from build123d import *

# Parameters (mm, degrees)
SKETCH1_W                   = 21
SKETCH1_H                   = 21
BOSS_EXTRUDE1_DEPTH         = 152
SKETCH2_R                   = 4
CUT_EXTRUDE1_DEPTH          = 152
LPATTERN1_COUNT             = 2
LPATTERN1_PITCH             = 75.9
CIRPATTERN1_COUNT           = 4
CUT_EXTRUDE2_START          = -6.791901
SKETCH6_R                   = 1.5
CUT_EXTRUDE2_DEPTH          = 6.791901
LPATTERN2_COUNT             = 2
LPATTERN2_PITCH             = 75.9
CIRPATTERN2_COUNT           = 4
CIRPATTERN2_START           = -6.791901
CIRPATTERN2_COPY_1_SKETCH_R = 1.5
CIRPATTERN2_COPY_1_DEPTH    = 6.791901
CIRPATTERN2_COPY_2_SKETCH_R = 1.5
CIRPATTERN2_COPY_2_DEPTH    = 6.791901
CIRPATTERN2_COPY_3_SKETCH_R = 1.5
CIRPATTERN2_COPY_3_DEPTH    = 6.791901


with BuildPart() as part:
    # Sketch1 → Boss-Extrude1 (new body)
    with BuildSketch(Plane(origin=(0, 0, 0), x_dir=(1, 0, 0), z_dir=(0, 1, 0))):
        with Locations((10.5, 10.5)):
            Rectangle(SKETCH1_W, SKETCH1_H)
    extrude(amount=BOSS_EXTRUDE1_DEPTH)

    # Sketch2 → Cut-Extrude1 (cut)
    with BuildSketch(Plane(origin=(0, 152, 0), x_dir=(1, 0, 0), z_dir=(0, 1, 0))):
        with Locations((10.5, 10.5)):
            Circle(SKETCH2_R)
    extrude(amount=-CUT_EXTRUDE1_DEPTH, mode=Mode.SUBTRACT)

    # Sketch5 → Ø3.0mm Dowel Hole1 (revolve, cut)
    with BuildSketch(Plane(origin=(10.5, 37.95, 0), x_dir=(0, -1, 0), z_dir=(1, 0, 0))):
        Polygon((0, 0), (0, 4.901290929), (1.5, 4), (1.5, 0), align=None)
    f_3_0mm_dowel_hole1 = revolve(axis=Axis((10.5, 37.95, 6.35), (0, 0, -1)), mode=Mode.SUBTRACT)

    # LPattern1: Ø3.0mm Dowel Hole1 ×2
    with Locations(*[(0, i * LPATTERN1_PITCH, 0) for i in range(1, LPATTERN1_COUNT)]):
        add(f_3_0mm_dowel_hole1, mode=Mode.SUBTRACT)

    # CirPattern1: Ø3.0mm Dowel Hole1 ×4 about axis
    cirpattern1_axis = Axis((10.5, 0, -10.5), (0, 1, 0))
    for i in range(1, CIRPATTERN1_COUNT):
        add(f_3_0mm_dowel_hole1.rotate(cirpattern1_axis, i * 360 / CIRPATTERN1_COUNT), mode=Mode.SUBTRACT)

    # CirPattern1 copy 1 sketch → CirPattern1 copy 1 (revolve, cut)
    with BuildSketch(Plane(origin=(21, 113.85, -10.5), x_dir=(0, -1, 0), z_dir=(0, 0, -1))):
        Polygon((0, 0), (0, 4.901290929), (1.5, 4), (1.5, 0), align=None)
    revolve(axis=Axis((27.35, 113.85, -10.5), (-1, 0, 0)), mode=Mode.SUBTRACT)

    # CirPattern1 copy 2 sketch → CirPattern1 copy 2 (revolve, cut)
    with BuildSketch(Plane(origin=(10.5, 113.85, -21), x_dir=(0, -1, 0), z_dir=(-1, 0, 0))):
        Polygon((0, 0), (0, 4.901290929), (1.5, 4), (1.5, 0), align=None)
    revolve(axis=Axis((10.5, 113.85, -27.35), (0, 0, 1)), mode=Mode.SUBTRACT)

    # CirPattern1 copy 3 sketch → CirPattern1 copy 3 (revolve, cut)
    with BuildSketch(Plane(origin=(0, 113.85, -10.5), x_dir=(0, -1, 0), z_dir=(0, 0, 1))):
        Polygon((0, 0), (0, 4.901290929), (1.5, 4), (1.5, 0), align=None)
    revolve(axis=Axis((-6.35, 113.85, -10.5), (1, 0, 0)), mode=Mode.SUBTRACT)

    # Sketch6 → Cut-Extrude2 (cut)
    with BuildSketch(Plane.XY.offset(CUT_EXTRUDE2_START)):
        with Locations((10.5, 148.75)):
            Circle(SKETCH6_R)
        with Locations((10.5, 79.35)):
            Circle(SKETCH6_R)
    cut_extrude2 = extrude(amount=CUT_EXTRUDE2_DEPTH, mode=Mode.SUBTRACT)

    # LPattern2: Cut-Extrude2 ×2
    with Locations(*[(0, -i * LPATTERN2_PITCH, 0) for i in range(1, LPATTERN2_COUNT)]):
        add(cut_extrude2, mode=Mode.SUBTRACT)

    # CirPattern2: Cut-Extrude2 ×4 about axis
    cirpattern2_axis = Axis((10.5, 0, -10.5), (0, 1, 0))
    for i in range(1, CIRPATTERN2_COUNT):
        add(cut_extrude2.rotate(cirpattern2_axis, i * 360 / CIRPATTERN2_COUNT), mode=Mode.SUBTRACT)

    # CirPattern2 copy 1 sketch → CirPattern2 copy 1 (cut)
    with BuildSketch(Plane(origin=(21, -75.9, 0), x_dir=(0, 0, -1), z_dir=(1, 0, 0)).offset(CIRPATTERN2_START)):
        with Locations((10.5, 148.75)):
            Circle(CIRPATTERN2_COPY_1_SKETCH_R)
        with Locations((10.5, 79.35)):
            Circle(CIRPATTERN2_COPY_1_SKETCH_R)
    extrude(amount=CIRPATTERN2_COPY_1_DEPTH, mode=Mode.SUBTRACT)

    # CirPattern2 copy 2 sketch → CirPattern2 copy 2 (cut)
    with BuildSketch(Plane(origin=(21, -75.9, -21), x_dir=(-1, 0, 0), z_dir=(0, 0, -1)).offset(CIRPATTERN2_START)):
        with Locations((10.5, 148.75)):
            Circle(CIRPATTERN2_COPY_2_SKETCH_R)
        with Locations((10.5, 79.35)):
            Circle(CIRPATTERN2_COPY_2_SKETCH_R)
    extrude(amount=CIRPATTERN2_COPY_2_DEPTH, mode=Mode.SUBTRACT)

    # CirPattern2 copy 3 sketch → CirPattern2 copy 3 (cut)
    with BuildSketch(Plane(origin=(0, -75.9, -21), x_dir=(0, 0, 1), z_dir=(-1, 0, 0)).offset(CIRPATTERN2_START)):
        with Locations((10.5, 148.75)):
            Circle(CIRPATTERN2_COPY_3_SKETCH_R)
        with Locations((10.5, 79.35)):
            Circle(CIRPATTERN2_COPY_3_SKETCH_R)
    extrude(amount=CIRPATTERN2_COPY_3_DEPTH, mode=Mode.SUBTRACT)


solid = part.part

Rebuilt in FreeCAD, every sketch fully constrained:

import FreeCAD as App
import Part
import Sketcher

V = App.Vector
Q = App.Units.Quantity


def add_polygon(sketch, points):
    """Adds a closed chain of lines whose ends are joined by coincident constraints."""
    first, n = sketch.GeometryCount, len(points)
    for a, b in zip(points, points[1:] + points[:1]):
        sketch.addGeometry(Part.LineSegment(App.Vector(*a, 0), App.Vector(*b, 0)), False)
    for i in range(n):
        sketch.addConstraint(Sketcher.Constraint("Coincident", first + i, 2, first + (i + 1) % n, 1))

doc = App.newDocument("Part")
body = doc.addObject("PartDesign::Body", "Body")

# Sketch on XZ plane
sketch1 = body.newObject("Sketcher::SketchObject", "Sketch")
sketch1.AttachmentSupport = (doc.getObject("XZ_Plane"), [""])
sketch1.MapMode = "FlatFace"
add_polygon(sketch1, [(0, -21), (0, 0), (21, 0), (21, -21)])  # lines 0-3
sketch1.addConstraint(Sketcher.Constraint("Vertical", 0))
sketch1.addConstraint(Sketcher.Constraint("Horizontal", 1))
sketch1.addConstraint(Sketcher.Constraint("Vertical", 2))
sketch1.addConstraint(Sketcher.Constraint("Horizontal", 3))
sketch1.addConstraint(Sketcher.Constraint("Coincident", 0, 2, -1, 1))
sketch1.addConstraint(Sketcher.Constraint("Equal", 3, 0))
sketch1.addConstraint(Sketcher.Constraint("DistanceX", 1, 1, 1, 2, Q("21 mm")))
pad1 = body.newObject("PartDesign::Pad", "Pad")
pad1.Profile = sketch1
pad1.Length = 152
pad1.Reversed = True

# Sketch on XZ plane
sketch2 = body.newObject("Sketcher::SketchObject", "Sketch001")
sketch2.AttachmentSupport = (doc.getObject("XZ_Plane"), [""])
sketch2.MapMode = "FlatFace"
sketch2.AttachmentOffset = App.Placement(V(0, 0, -152), App.Rotation())
sketch2.addGeometry(Part.Circle(V(10.5, -10.5, 0), V(0, 0, 1), 4), False)
sketch2.addConstraint(Sketcher.Constraint("Diameter", 0, Q("8 mm")))
sketch2.addConstraint(Sketcher.Constraint("DistanceX", -1, 1, 0, 3, Q("10.5 mm")))
sketch2.addConstraint(Sketcher.Constraint("DistanceY", 0, 3, -1, 1, Q("10.5 mm")))
pocket1 = body.newObject("PartDesign::Pocket", "Pocket")
pocket1.Profile = sketch2
pocket1.Length = 152
pocket1.Reversed = True

# Sketch on YZ plane
sketch3 = body.newObject("Sketcher::SketchObject", "Sketch002")
sketch3.AttachmentSupport = (doc.getObject("YZ_Plane"), [""])
sketch3.MapMode = "FlatFace"
sketch3.AttachmentOffset = App.Placement(V(0, 0, 10.5), App.Rotation())
add_polygon(sketch3, [(38, -4.9), (38, 0), (36.5, 0), (36.5, -4)])  # lines 0-3
sketch3.addGeometry(Part.LineSegment(V(38, 0, 0), V(38, -4.9, 0)), True)  # axis
sketch3.addConstraint(Sketcher.Constraint("Vertical", 0))
sketch3.addConstraint(Sketcher.Constraint("Horizontal", 1))
sketch3.addConstraint(Sketcher.Constraint("Vertical", 2))
sketch3.addConstraint(Sketcher.Constraint("Vertical", 4))
sketch3.addConstraint(Sketcher.Constraint("Coincident", 4, 1, 0, 2))
sketch3.addConstraint(Sketcher.Constraint("PointOnObject", 0, 2, -1))
sketch3.addConstraint(Sketcher.Constraint("Equal", 0, 4))
sketch3.addConstraint(Sketcher.Constraint("DistanceY", 2, 2, 2, 1, Q("4 mm")))
sketch3.addConstraint(Sketcher.Constraint("Angle", 3, Q("-31 deg")))
sketch3.addConstraint(Sketcher.Constraint("DistanceX", 1, 2, 1, 1, Q("1.5 mm")))
sketch3.addConstraint(Sketcher.Constraint("DistanceX", -1, 1, 0, 2, Q("37.95 mm")))
groove = body.newObject("PartDesign::Groove", "Groove")
groove.Profile = sketch3
groove.ReferenceAxis = (sketch3, ["Axis0"])
groove.Angle = 360
doc.recompute()

linearpattern = body.newObject("PartDesign::LinearPattern", "LinearPattern")
linearpattern.Originals = [groove]
linearpattern.Direction = (doc.getObject("Y_Axis"), [""])
linearpattern.Mode = "offset"
linearpattern.Offset = 75.9
linearpattern.Occurrences = 2
body.Tip = linearpattern
doc.recompute()

datumline = body.newObject("PartDesign::Line", "DatumLine")
datumline.Placement = App.Placement(V(10.5, 0, -10.5), App.Rotation(V(0, 0, 1), V(0, 1, 0)))
polarpattern = body.newObject("PartDesign::PolarPattern", "PolarPattern")
polarpattern.Originals = [groove]
polarpattern.Axis = (datumline, [""])
polarpattern.Angle = 360
polarpattern.Occurrences = 4
body.Tip = polarpattern

# Sketch on XY plane
sketch4 = body.newObject("Sketcher::SketchObject", "Sketch003")
sketch4.AttachmentSupport = (doc.getObject("XY_Plane"), [""])
sketch4.MapMode = "FlatFace"
sketch4.AttachmentOffset = App.Placement(V(0, 0, -10.5), App.Rotation())
add_polygon(sketch4, [(16.1, 113.8), (21, 113.8), (21, 112.3), (17, 112.3)])  # lines 0-3
sketch4.addGeometry(Part.LineSegment(V(21, 113.8, 0), V(16.1, 113.8, 0)), True)  # axis
sketch4.addConstraint(Sketcher.Constraint("Horizontal", 0))
sketch4.addConstraint(Sketcher.Constraint("Vertical", 1))
sketch4.addConstraint(Sketcher.Constraint("Horizontal", 2))
sketch4.addConstraint(Sketcher.Constraint("Horizontal", 4))
sketch4.addConstraint(Sketcher.Constraint("Coincident", 4, 1, 0, 2))
sketch4.addConstraint(Sketcher.Constraint("Equal", 0, 4))
sketch4.addConstraint(Sketcher.Constraint("DistanceX", 2, 2, 2, 1, Q("4 mm")))
sketch4.addConstraint(Sketcher.Constraint("Angle", 3, Q("121 deg")))
sketch4.addConstraint(Sketcher.Constraint("DistanceY", 1, 2, 1, 1, Q("1.5 mm")))
sketch4.addConstraint(Sketcher.Constraint("DistanceX", -1, 1, 0, 2, Q("21 mm")))
sketch4.addConstraint(Sketcher.Constraint("DistanceY", -1, 1, 0, 2, Q("113.85 mm")))
groove2 = body.newObject("PartDesign::Groove", "Groove001")
groove2.Profile = sketch4
groove2.ReferenceAxis = (sketch4, ["Axis0"])
groove2.Angle = 360

# Sketch on YZ plane
sketch5 = body.newObject("Sketcher::SketchObject", "Sketch004")
sketch5.AttachmentSupport = (doc.getObject("YZ_Plane"), [""])
sketch5.MapMode = "FlatFace"
sketch5.AttachmentOffset = App.Placement(V(0, 0, 10.5), App.Rotation())
add_polygon(sketch5, [(113.8, -16.1), (113.8, -21), (112.3, -21), (112.3, -17)])  # lines 0-3
sketch5.addGeometry(Part.LineSegment(V(113.8, -21, 0), V(113.8, -16.1, 0)), True)  # axis
sketch5.addConstraint(Sketcher.Constraint("Vertical", 0))
sketch5.addConstraint(Sketcher.Constraint("Horizontal", 1))
sketch5.addConstraint(Sketcher.Constraint("Vertical", 2))
sketch5.addConstraint(Sketcher.Constraint("Vertical", 4))
sketch5.addConstraint(Sketcher.Constraint("Coincident", 4, 1, 0, 2))
sketch5.addConstraint(Sketcher.Constraint("Equal", 0, 4))
sketch5.addConstraint(Sketcher.Constraint("DistanceY", 2, 1, 2, 2, Q("4 mm")))
sketch5.addConstraint(Sketcher.Constraint("Angle", 3, Q("31 deg")))
sketch5.addConstraint(Sketcher.Constraint("DistanceX", 1, 2, 1, 1, Q("1.5 mm")))
sketch5.addConstraint(Sketcher.Constraint("DistanceY", 0, 2, -1, 1, Q("21 mm")))
sketch5.addConstraint(Sketcher.Constraint("DistanceX", -1, 1, 0, 2, Q("113.85 mm")))
groove3 = body.newObject("PartDesign::Groove", "Groove002")
groove3.Profile = sketch5
groove3.ReferenceAxis = (sketch5, ["Axis0"])
groove3.Angle = 360

# Sketch on XY plane
sketch6 = body.newObject("Sketcher::SketchObject", "Sketch005")
sketch6.AttachmentSupport = (doc.getObject("XY_Plane"), [""])
sketch6.MapMode = "FlatFace"
sketch6.AttachmentOffset = App.Placement(V(0, 0, -10.5), App.Rotation())
add_polygon(sketch6, [(4.9, 113.8), (0, 113.8), (0, 112.3), (4, 112.3)])  # lines 0-3
sketch6.addGeometry(Part.LineSegment(V(0, 113.8, 0), V(4.9, 113.8, 0)), True)  # axis
sketch6.addConstraint(Sketcher.Constraint("Horizontal", 0))
sketch6.addConstraint(Sketcher.Constraint("Vertical", 1))
sketch6.addConstraint(Sketcher.Constraint("Horizontal", 2))
sketch6.addConstraint(Sketcher.Constraint("Horizontal", 4))
sketch6.addConstraint(Sketcher.Constraint("Coincident", 4, 1, 0, 2))
sketch6.addConstraint(Sketcher.Constraint("PointOnObject", 0, 2, -2))
sketch6.addConstraint(Sketcher.Constraint("Equal", 0, 4))
sketch6.addConstraint(Sketcher.Constraint("DistanceX", 2, 1, 2, 2, Q("4 mm")))
sketch6.addConstraint(Sketcher.Constraint("Angle", 3, Q("59 deg")))
sketch6.addConstraint(Sketcher.Constraint("DistanceY", 1, 2, 1, 1, Q("1.5 mm")))
sketch6.addConstraint(Sketcher.Constraint("DistanceY", -1, 1, 0, 2, Q("113.85 mm")))
groove4 = body.newObject("PartDesign::Groove", "Groove003")
groove4.Profile = sketch6
groove4.ReferenceAxis = (sketch6, ["Axis0"])
groove4.Angle = 360

# Sketch on XY plane
sketch7 = body.newObject("Sketcher::SketchObject", "Sketch006")
sketch7.AttachmentSupport = (doc.getObject("XY_Plane"), [""])
sketch7.MapMode = "FlatFace"
sketch7.AttachmentOffset = App.Placement(V(0, 0, -6.791901), App.Rotation())
sketch7.addGeometry(Part.Circle(V(10.5, 148.8, 0), V(0, 0, 1), 1.5), False)
sketch7.addGeometry(Part.Circle(V(10.5, 79.3, 0), V(0, 0, 1), 1.5), False)
sketch7.addConstraint(Sketcher.Constraint("Equal", 0, 1))
sketch7.addConstraint(Sketcher.Constraint("Vertical", 0, 3, 1, 3))
sketch7.addConstraint(Sketcher.Constraint("Diameter", 0, Q("3 mm")))
sketch7.addConstraint(Sketcher.Constraint("DistanceX", -1, 1, 0, 3, Q("10.5 mm")))
sketch7.addConstraint(Sketcher.Constraint("DistanceY", 1, 3, 0, 3, Q("69.4 mm")))
sketch7.addConstraint(Sketcher.Constraint("DistanceY", -1, 1, 0, 3, Q("148.75 mm")))
pocket2 = body.newObject("PartDesign::Pocket", "Pocket001")
pocket2.Profile = sketch7
pocket2.Length = 6.791901
pocket2.Reversed = True
doc.recompute()

linearpattern2 = body.newObject("PartDesign::LinearPattern", "LinearPattern001")
linearpattern2.Originals = [pocket2]
linearpattern2.Direction = (doc.getObject("Y_Axis"), [""])
linearpattern2.Mode = "offset"
linearpattern2.Offset = 75.9
linearpattern2.Occurrences = 2
linearpattern2.Reversed = True
body.Tip = linearpattern2
doc.recompute()

datumline2 = body.newObject("PartDesign::Line", "DatumLine001")
datumline2.Placement = App.Placement(V(10.5, 0, -10.5), App.Rotation(V(0, 0, 1), V(0, 1, 0)))
polarpattern2 = body.newObject("PartDesign::PolarPattern", "PolarPattern001")
polarpattern2.Originals = [pocket2]
polarpattern2.Axis = (datumline2, [""])
polarpattern2.Angle = 360
polarpattern2.Occurrences = 4
body.Tip = polarpattern2

# Sketch on YZ plane
sketch8 = body.newObject("Sketcher::SketchObject", "Sketch007")
sketch8.AttachmentSupport = (doc.getObject("YZ_Plane"), [""])
sketch8.MapMode = "FlatFace"
sketch8.AttachmentOffset = App.Placement(V(0, 0, 14.208099), App.Rotation())
sketch8.addGeometry(Part.Circle(V(72.8, -10.5, 0), V(0, 0, 1), 1.5), False)
sketch8.addGeometry(Part.Circle(V(3.5, -10.5, 0), V(0, 0, 1), 1.5), False)
sketch8.addConstraint(Sketcher.Constraint("Equal", 0, 1))
sketch8.addConstraint(Sketcher.Constraint("Horizontal", 0, 3, 1, 3))
sketch8.addConstraint(Sketcher.Constraint("Diameter", 0, Q("3 mm")))
sketch8.addConstraint(Sketcher.Constraint("DistanceY", 0, 3, -1, 1, Q("10.5 mm")))
sketch8.addConstraint(Sketcher.Constraint("DistanceX", 1, 3, 0, 3, Q("69.4 mm")))
sketch8.addConstraint(Sketcher.Constraint("DistanceX", -1, 1, 0, 3, Q("72.85 mm")))
pocket3 = body.newObject("PartDesign::Pocket", "Pocket002")
pocket3.Profile = sketch8
pocket3.Length = 6.791901
pocket3.Reversed = True

# Sketch on XY plane
sketch9 = body.newObject("Sketcher::SketchObject", "Sketch008")
sketch9.AttachmentSupport = (doc.getObject("XY_Plane"), [""])
sketch9.MapMode = "FlatFace"
sketch9.AttachmentOffset = App.Placement(V(0, 0, -14.208099), App.Rotation())
sketch9.addGeometry(Part.Circle(V(10.5, 72.8, 0), V(0, 0, 1), 1.5), False)
sketch9.addGeometry(Part.Circle(V(10.5, 3.5, 0), V(0, 0, 1), 1.5), False)
sketch9.addConstraint(Sketcher.Constraint("Equal", 0, 1))
sketch9.addConstraint(Sketcher.Constraint("Vertical", 0, 3, 1, 3))
sketch9.addConstraint(Sketcher.Constraint("Diameter", 0, Q("3 mm")))
sketch9.addConstraint(Sketcher.Constraint("DistanceX", -1, 1, 0, 3, Q("10.5 mm")))
sketch9.addConstraint(Sketcher.Constraint("DistanceY", 1, 3, 0, 3, Q("69.4 mm")))
sketch9.addConstraint(Sketcher.Constraint("DistanceY", -1, 1, 0, 3, Q("72.85 mm")))
pocket4 = body.newObject("PartDesign::Pocket", "Pocket003")
pocket4.Profile = sketch9
pocket4.Length = 6.791901

# Sketch on YZ plane
sketch10 = body.newObject("Sketcher::SketchObject", "Sketch009")
sketch10.AttachmentSupport = (doc.getObject("YZ_Plane"), [""])
sketch10.MapMode = "FlatFace"
sketch10.AttachmentOffset = App.Placement(V(0, 0, 6.791901), App.Rotation())
sketch10.addGeometry(Part.Circle(V(72.8, -10.5, 0), V(0, 0, 1), 1.5), False)
sketch10.addGeometry(Part.Circle(V(3.5, -10.5, 0), V(0, 0, 1), 1.5), False)
sketch10.addConstraint(Sketcher.Constraint("Equal", 0, 1))
sketch10.addConstraint(Sketcher.Constraint("Horizontal", 0, 3, 1, 3))
sketch10.addConstraint(Sketcher.Constraint("Diameter", 0, Q("3 mm")))
sketch10.addConstraint(Sketcher.Constraint("DistanceY", 0, 3, -1, 1, Q("10.5 mm")))
sketch10.addConstraint(Sketcher.Constraint("DistanceX", 1, 3, 0, 3, Q("69.4 mm")))
sketch10.addConstraint(Sketcher.Constraint("DistanceX", -1, 1, 0, 3, Q("72.85 mm")))
pocket5 = body.newObject("PartDesign::Pocket", "Pocket004")
pocket5.Profile = sketch10
pocket5.Length = 6.791901

doc.recompute()
